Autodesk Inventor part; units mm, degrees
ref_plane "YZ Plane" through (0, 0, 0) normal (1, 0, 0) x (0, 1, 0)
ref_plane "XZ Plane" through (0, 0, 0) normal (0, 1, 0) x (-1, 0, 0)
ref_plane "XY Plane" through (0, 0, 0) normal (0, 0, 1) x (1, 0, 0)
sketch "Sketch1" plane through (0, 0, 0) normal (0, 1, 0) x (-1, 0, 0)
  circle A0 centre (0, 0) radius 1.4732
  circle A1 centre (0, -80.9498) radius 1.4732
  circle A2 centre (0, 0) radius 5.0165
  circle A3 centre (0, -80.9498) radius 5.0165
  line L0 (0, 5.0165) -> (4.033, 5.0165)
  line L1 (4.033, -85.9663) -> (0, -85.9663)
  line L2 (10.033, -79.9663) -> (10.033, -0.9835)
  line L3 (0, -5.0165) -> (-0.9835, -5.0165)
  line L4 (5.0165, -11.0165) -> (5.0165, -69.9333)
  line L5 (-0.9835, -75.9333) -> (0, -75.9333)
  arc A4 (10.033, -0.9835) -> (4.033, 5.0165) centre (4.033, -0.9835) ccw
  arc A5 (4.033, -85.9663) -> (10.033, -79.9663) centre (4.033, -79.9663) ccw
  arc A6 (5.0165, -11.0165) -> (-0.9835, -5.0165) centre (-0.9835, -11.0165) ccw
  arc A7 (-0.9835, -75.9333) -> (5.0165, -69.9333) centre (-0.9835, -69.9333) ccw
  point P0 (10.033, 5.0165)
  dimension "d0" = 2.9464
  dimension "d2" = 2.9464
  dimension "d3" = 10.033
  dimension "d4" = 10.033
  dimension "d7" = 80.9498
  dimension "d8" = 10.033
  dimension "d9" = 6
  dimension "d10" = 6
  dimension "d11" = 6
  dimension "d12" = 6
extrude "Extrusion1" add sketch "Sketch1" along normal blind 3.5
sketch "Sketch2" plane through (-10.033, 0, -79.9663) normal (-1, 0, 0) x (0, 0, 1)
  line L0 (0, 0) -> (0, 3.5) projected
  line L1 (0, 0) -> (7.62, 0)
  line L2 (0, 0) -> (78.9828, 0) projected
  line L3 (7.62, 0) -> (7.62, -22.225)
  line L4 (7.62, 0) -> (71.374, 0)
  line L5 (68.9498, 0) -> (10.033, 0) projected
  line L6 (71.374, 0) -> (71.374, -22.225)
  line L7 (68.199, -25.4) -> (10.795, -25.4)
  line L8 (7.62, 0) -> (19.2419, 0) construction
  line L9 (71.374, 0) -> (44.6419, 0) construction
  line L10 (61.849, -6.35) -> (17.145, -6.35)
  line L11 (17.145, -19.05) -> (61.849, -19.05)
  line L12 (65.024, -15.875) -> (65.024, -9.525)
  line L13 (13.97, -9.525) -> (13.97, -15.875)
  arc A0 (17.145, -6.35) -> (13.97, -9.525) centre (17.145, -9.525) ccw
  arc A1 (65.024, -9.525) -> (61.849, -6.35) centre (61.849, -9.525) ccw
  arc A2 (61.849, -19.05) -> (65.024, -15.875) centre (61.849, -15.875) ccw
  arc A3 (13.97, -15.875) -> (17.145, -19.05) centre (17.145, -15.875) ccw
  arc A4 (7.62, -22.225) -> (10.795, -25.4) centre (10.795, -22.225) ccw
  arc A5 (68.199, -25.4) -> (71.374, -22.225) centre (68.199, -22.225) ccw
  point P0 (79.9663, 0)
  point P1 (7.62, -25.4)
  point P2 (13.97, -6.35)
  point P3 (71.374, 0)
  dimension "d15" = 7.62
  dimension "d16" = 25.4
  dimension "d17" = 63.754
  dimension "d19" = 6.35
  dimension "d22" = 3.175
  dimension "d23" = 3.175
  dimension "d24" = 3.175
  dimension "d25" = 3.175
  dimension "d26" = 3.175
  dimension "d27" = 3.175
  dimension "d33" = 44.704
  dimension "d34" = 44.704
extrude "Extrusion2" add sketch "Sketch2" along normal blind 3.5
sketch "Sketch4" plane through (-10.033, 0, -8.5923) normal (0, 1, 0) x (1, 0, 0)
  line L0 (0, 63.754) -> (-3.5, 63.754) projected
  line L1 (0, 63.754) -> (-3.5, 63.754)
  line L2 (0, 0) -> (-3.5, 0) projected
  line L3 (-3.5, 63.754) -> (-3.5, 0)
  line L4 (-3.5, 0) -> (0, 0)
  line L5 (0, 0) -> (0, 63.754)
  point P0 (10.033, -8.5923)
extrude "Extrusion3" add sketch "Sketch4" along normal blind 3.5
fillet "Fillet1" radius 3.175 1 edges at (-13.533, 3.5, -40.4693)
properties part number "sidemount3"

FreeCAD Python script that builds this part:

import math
import FreeCAD as App
import Part
import Sketcher
from FreeCAD import Vector
Q = App.Units.Quantity


def edges_at(feature, points):
    """Names of the edges that pass closest to the given points."""
    edges = feature.Shape.Edges
    near = lambda p: min(range(len(edges)), key=lambda i: edges[i].distToShape(Part.Vertex(*p))[0])
    return sorted({f"Edge{near(p) + 1}" for p in points})

doc = App.newDocument("Part")
params = doc.addObject("Spreadsheet::Sheet", "Params")
for row, (alias, value) in enumerate([
    ("sketch1_diameter", "0.116 in"),
    ("pad1_length", "0.1377953 in"),
    ("sketch2_radius", "0.125 in"),
    ("sketch2_width", "0.25 in"),
    ("sketch2_height", "2.51 in"),
    ("sketch2_height2", "1.76 in"),
    ("pad2_length", "0.1377953 in"),
    ("sketch3_height", "2.51 in"),
    ("pad3_length", "0.1377953 in"),
    ("fillet_radius", "0.125 in"),
], start=1):
    params.set(f"A{row}", alias)
    params.set(f"B{row}", "=" + value)
    params.setAlias(f"B{row}", alias)

body = doc.addObject("PartDesign::Body", "Body")
body.AllowCompound = True

# Sketch on XZ plane
sketch1 = body.newObject("Sketcher::SketchObject", "Sketch")
sketch1.AttachmentSupport = (doc.getObject("XZ_Plane"), [""])
sketch1.MapMode = "FlatFace"
sketch1.addGeometry(Part.ArcOfCircle(Part.Circle(Vector(0, 0, 0), Vector(0, 0, 1), 5), math.radians(-90), math.radians(90)), False)
sketch1.addGeometry(Part.LineSegment(Vector(0, -5, 0), Vector(1, -5, 0)), False)
sketch1.addGeometry(Part.ArcOfCircle(Part.Circle(Vector(1, -11, 0), Vector(0, 0, 1), 6), math.radians(90), math.radians(180)), False)
sketch1.addGeometry(Part.LineSegment(Vector(-5, -11, 0), Vector(-5, -69.9, 0)), False)
sketch1.addGeometry(Part.ArcOfCircle(Part.Circle(Vector(1, -69.9, 0), Vector(0, 0, 1), 6), math.radians(180), math.radians(270)), False)
sketch1.addGeometry(Part.LineSegment(Vector(1, -75.9, 0), Vector(0, -75.9, 0)), False)
sketch1.addGeometry(Part.ArcOfCircle(Part.Circle(Vector(0, -80.9, 0), Vector(0, 0, 1), 5), math.radians(-90), math.radians(90)), False)
sketch1.addGeometry(Part.LineSegment(Vector(0, -86, 0), Vector(-4, -86, 0)), False)
sketch1.addGeometry(Part.ArcOfCircle(Part.Circle(Vector(-4, -80, 0), Vector(0, 0, 1), 6), math.radians(180), math.radians(270)), False)
sketch1.addGeometry(Part.LineSegment(Vector(-10, -80, 0), Vector(-10, -1, 0)), False)
sketch1.addGeometry(Part.ArcOfCircle(Part.Circle(Vector(-4, -1, 0), Vector(0, 0, 1), 6), math.radians(90), math.radians(180)), False)
sketch1.addGeometry(Part.LineSegment(Vector(-4, 5, 0), Vector(0, 5, 0)), False)
sketch1.addGeometry(Part.Circle(Vector(0, 0, 0), Vector(0, 0, 1), 1.5), False)
sketch1.addGeometry(Part.Circle(Vector(0, -80.9, 0), Vector(0, 0, 1), 1.5), False)
sketch1.addConstraint(Sketcher.Constraint("Tangent", 0, 1, 1, 1))
sketch1.addConstraint(Sketcher.Constraint("Tangent", 1, 2, 2, 1))
sketch1.addConstraint(Sketcher.Constraint("Tangent", 2, 2, 3, 1))
sketch1.addConstraint(Sketcher.Constraint("Tangent", 3, 2, 4, 1))
sketch1.addConstraint(Sketcher.Constraint("Tangent", 4, 2, 5, 1))
sketch1.addConstraint(Sketcher.Constraint("Tangent", 5, 2, 6, 2))
sketch1.addConstraint(Sketcher.Constraint("Tangent", 6, 1, 7, 1))
sketch1.addConstraint(Sketcher.Constraint("Tangent", 7, 2, 8, 2))
sketch1.addConstraint(Sketcher.Constraint("Tangent", 8, 1, 9, 1))
sketch1.addConstraint(Sketcher.Constraint("Tangent", 9, 2, 10, 2))
sketch1.addConstraint(Sketcher.Constraint("Tangent", 10, 1, 11, 1))
sketch1.addConstraint(Sketcher.Constraint("Tangent", 11, 2, 0, 2))
sketch1.addConstraint(Sketcher.Constraint("Horizontal", 1))
sketch1.addConstraint(Sketcher.Constraint("Vertical", 3))
sketch1.addConstraint(Sketcher.Constraint("Horizontal", 5))
sketch1.addConstraint(Sketcher.Constraint("Horizontal", 7))
sketch1.addConstraint(Sketcher.Constraint("Vertical", 9))
sketch1.addConstraint(Sketcher.Constraint("Horizontal", 11))
sketch1.addConstraint(Sketcher.Constraint("Coincident", 0, 3, -1, 1))
sketch1.addConstraint(Sketcher.Constraint("Coincident", 12, 3, -1, 1))
sketch1.addConstraint(Sketcher.Constraint("Coincident", 13, 3, 6, 3))
sketch1.addConstraint(Sketcher.Constraint("Equal", 2, 4))
sketch1.addConstraint(Sketcher.Constraint("Equal", 0, 6))
sketch1.addConstraint(Sketcher.Constraint("Equal", 4, 8))
sketch1.addConstraint(Sketcher.Constraint("Equal", 8, 10))
sketch1.addConstraint(Sketcher.Constraint("Equal", 12, 13))
sketch1.addConstraint(Sketcher.Constraint("PointOnObject", 6, 3, -2))
sketch1.addConstraint(Sketcher.Constraint("Diameter", 12, Q("0.116 in")))
sketch1.addConstraint(Sketcher.Constraint("Radius", 0, Q("0.1975 in")))
sketch1.addConstraint(Sketcher.Constraint("Radius", 2, Q("6 mm")))
sketch1.addConstraint(Sketcher.Constraint("DistanceY", 6, 3, -1, 1, Q("3.187 in")))
sketch1.addConstraint(Sketcher.Constraint("DistanceX", 8, 1, -1, 1, Q("0.395 in")))
sketch1.addConstraint(Sketcher.Constraint("DistanceX", 1, 1, 1, 2, Q("0.9835 mm")))
sketch1.setExpression("Constraints[27]", "Params.sketch1_diameter")
pad1 = body.newObject("PartDesign::Pad", "Pad")
pad1.Profile = sketch1
pad1.setExpression("Length", "Params.pad1_length")
pad1.Reversed = True

# Sketch on YZ plane
sketch2 = body.newObject("Sketcher::SketchObject", "Sketch001")
sketch2.AttachmentSupport = (doc.getObject("YZ_Plane"), [""])
sketch2.MapMode = "FlatFace"
sketch2.AttachmentOffset = App.Placement(Vector(0, 0, -0.395 * 25.4), App.Rotation())
sketch2.addGeometry(Part.LineSegment(Vector(0, -8.6, 0), Vector(0, -72.3, 0)), False)
sketch2.addGeometry(Part.LineSegment(Vector(0, -72.3, 0), Vector(-22.2, -72.3, 0)), False)
sketch2.addGeometry(Part.ArcOfCircle(Part.Circle(Vector(-22.2, -69.2, 0), Vector(0, 0, 1), 3.2), math.radians(180), math.radians(270)), False)
sketch2.addGeometry(Part.LineSegment(Vector(-25.4, -69.2, 0), Vector(-25.4, -11.8, 0)), False)
sketch2.addGeometry(Part.ArcOfCircle(Part.Circle(Vector(-22.2, -11.8, 0), Vector(0, 0, 1), 3.2), math.radians(90), math.radians(180)), False)
sketch2.addGeometry(Part.LineSegment(Vector(-22.2, -8.6, 0), Vector(0, -8.6, 0)), False)
sketch2.addGeometry(Part.LineSegment(Vector(-6.3, -62.8, 0), Vector(-6.3, -18.1, 0)), False)
sketch2.addGeometry(Part.ArcOfCircle(Part.Circle(Vector(-9.5, -18.1, 0), Vector(0, 0, 1), 3.2), math.radians(0), math.radians(90)), False)
sketch2.addGeometry(Part.LineSegment(Vector(-9.5, -14.9, 0), Vector(-15.9, -14.9, 0)), False)
sketch2.addGeometry(Part.ArcOfCircle(Part.Circle(Vector(-15.9, -18.1, 0), Vector(0, 0, 1), 3.2), math.radians(90), math.radians(180)), False)
sketch2.addGeometry(Part.LineSegment(Vector(-19.1, -18.1, 0), Vector(-19.1, -62.8, 0)), False)
sketch2.addGeometry(Part.ArcOfCircle(Part.Circle(Vector(-15.9, -62.8, 0), Vector(0, 0, 1), 3.2), math.radians(180), math.radians(270)), False)
sketch2.addGeometry(Part.LineSegment(Vector(-15.9, -66, 0), Vector(-9.5, -66, 0)), False)
sketch2.addGeometry(Part.ArcOfCircle(Part.Circle(Vector(-9.5, -62.8, 0), Vector(0, 0, 1), 3.2), math.radians(-90), math.radians(0)), False)
sketch2.addConstraint(Sketcher.Constraint("Coincident", 0, 2, 1, 1))
sketch2.addConstraint(Sketcher.Constraint("Tangent", 1, 2, 2, 2))
sketch2.addConstraint(Sketcher.Constraint("Tangent", 2, 1, 3, 1))
sketch2.addConstraint(Sketcher.Constraint("Tangent", 3, 2, 4, 2))
sketch2.addConstraint(Sketcher.Constraint("Tangent", 4, 1, 5, 1))
sketch2.addConstraint(Sketcher.Constraint("Coincident", 5, 2, 0, 1))
sketch2.addConstraint(Sketcher.Constraint("Tangent", 6, 2, 7, 1))
sketch2.addConstraint(Sketcher.Constraint("Tangent", 7, 2, 8, 1))
sketch2.addConstraint(Sketcher.Constraint("Tangent", 8, 2, 9, 1))
sketch2.addConstraint(Sketcher.Constraint("Tangent", 9, 2, 10, 1))
sketch2.addConstraint(Sketcher.Constraint("Tangent", 10, 2, 11, 1))
sketch2.addConstraint(Sketcher.Constraint("Tangent", 11, 2, 12, 1))
sketch2.addConstraint(Sketcher.Constraint("Tangent", 12, 2, 13, 1))
sketch2.addConstraint(Sketcher.Constraint("Tangent", 13, 2, 6, 1))
sketch2.addConstraint(Sketcher.Constraint("Vertical", 0))
sketch2.addConstraint(Sketcher.Constraint("Horizontal", 1))
sketch2.addConstraint(Sketcher.Constraint("Vertical", 3))
sketch2.addConstraint(Sketcher.Constraint("Horizontal", 5))
sketch2.addConstraint(Sketcher.Constraint("Vertical", 6))
sketch2.addConstraint(Sketcher.Constraint("Horizontal", 8))
sketch2.addConstraint(Sketcher.Constraint("Vertical", 10))
sketch2.addConstraint(Sketcher.Constraint("Horizontal", 12))
sketch2.addConstraint(Sketcher.Constraint("Equal", 2, 4))
sketch2.addConstraint(Sketcher.Constraint("Equal", 4, 7))
sketch2.addConstraint(Sketcher.Constraint("Equal", 7, 9))
sketch2.addConstraint(Sketcher.Constraint("Equal", 9, 11))
sketch2.addConstraint(Sketcher.Constraint("Equal", 11, 13))
sketch2.addConstraint(Sketcher.Constraint("PointOnObject", 0, 2, -2))
sketch2.addConstraint(Sketcher.Constraint("DistanceX", 2, 1, -1, 1, Q("1 in")))
sketch2.addConstraint(Sketcher.Constraint("Radius", 2, Q("0.125 in")))
sketch2.addConstraint(Sketcher.Constraint("DistanceX", 8, 2, 8, 1, Q("0.25 in")))
sketch2.addConstraint(Sketcher.Constraint("DistanceY", 0, 2, 0, 1, Q("2.51 in")))
sketch2.addConstraint(Sketcher.Constraint("DistanceY", 6, 1, 6, 2, Q("1.76 in")))
sketch2.addConstraint(Sketcher.Constraint("DistanceX", 6, 2, -1, 1, Q("0.25 in")))
sketch2.addConstraint(Sketcher.Constraint("DistanceY", 7, 3, 4, 3, Q("0.25 in")))
sketch2.addConstraint(Sketcher.Constraint("DistanceY", 2, 3, -1, 1, Q("69.1713 mm")))
sketch2.setExpression("Constraints[29]", "Params.sketch2_radius")
sketch2.setExpression("Constraints[30]", "Params.sketch2_width")
sketch2.setExpression("Constraints[31]", "Params.sketch2_height")
sketch2.setExpression("Constraints[32]", "Params.sketch2_height2")
pad2 = body.newObject("PartDesign::Pad", "Pad001")
pad2.Profile = sketch2
pad2.setExpression("Length", "Params.pad2_length")
pad2.Reversed = True

# Sketch on XZ plane
sketch3 = body.newObject("Sketcher::SketchObject", "Sketch002")
sketch3.AttachmentSupport = (doc.getObject("XZ_Plane"), [""])
sketch3.MapMode = "FlatFace"
sketch3.addGeometry(Part.LineSegment(Vector(-10, -8.6, 0), Vector(-10, -72.3, 0)), False)
sketch3.addGeometry(Part.LineSegment(Vector(-10, -72.3, 0), Vector(-13.5, -72.3, 0)), False)
sketch3.addGeometry(Part.LineSegment(Vector(-13.5, -72.3, 0), Vector(-13.5, -8.6, 0)), False)
sketch3.addGeometry(Part.LineSegment(Vector(-13.5, -8.6, 0), Vector(-10, -8.6, 0)), False)
sketch3.addConstraint(Sketcher.Constraint("Coincident", 0, 2, 1, 1))
sketch3.addConstraint(Sketcher.Constraint("Coincident", 1, 2, 2, 1))
sketch3.addConstraint(Sketcher.Constraint("Coincident", 2, 2, 3, 1))
sketch3.addConstraint(Sketcher.Constraint("Coincident", 3, 2, 0, 1))
sketch3.addConstraint(Sketcher.Constraint("Vertical", 0))
sketch3.addConstraint(Sketcher.Constraint("Horizontal", 1))
sketch3.addConstraint(Sketcher.Constraint("Vertical", 2))
sketch3.addConstraint(Sketcher.Constraint("Horizontal", 3))
sketch3.addConstraint(Sketcher.Constraint("DistanceY", 0, 2, 0, 1, Q("2.51 in")))
sketch3.addConstraint(Sketcher.Constraint("DistanceX", 1, 2, 1, 1, Q("0.1378 in")))
sketch3.addConstraint(Sketcher.Constraint("DistanceX", 0, 2, -1, 1, Q("0.395 in")))
sketch3.addConstraint(Sketcher.Constraint("DistanceY", 0, 2, -1, 1, Q("72.3463 mm")))
sketch3.setExpression("Constraints[8]", "Params.sketch3_height")
pad3 = body.newObject("PartDesign::Pad", "Pad002")
pad3.Profile = sketch3
pad3.setExpression("Length", "Params.pad3_length")
pad3.Reversed = True
doc.recompute()

fillet = body.newObject("PartDesign::Fillet", "Fillet")
fillet.Base = (pad3, edges_at(pad3, [(-13.533, 3.5, -40.469)]))
fillet.setExpression("Radius", "Params.fillet_radius")

doc.recompute()
